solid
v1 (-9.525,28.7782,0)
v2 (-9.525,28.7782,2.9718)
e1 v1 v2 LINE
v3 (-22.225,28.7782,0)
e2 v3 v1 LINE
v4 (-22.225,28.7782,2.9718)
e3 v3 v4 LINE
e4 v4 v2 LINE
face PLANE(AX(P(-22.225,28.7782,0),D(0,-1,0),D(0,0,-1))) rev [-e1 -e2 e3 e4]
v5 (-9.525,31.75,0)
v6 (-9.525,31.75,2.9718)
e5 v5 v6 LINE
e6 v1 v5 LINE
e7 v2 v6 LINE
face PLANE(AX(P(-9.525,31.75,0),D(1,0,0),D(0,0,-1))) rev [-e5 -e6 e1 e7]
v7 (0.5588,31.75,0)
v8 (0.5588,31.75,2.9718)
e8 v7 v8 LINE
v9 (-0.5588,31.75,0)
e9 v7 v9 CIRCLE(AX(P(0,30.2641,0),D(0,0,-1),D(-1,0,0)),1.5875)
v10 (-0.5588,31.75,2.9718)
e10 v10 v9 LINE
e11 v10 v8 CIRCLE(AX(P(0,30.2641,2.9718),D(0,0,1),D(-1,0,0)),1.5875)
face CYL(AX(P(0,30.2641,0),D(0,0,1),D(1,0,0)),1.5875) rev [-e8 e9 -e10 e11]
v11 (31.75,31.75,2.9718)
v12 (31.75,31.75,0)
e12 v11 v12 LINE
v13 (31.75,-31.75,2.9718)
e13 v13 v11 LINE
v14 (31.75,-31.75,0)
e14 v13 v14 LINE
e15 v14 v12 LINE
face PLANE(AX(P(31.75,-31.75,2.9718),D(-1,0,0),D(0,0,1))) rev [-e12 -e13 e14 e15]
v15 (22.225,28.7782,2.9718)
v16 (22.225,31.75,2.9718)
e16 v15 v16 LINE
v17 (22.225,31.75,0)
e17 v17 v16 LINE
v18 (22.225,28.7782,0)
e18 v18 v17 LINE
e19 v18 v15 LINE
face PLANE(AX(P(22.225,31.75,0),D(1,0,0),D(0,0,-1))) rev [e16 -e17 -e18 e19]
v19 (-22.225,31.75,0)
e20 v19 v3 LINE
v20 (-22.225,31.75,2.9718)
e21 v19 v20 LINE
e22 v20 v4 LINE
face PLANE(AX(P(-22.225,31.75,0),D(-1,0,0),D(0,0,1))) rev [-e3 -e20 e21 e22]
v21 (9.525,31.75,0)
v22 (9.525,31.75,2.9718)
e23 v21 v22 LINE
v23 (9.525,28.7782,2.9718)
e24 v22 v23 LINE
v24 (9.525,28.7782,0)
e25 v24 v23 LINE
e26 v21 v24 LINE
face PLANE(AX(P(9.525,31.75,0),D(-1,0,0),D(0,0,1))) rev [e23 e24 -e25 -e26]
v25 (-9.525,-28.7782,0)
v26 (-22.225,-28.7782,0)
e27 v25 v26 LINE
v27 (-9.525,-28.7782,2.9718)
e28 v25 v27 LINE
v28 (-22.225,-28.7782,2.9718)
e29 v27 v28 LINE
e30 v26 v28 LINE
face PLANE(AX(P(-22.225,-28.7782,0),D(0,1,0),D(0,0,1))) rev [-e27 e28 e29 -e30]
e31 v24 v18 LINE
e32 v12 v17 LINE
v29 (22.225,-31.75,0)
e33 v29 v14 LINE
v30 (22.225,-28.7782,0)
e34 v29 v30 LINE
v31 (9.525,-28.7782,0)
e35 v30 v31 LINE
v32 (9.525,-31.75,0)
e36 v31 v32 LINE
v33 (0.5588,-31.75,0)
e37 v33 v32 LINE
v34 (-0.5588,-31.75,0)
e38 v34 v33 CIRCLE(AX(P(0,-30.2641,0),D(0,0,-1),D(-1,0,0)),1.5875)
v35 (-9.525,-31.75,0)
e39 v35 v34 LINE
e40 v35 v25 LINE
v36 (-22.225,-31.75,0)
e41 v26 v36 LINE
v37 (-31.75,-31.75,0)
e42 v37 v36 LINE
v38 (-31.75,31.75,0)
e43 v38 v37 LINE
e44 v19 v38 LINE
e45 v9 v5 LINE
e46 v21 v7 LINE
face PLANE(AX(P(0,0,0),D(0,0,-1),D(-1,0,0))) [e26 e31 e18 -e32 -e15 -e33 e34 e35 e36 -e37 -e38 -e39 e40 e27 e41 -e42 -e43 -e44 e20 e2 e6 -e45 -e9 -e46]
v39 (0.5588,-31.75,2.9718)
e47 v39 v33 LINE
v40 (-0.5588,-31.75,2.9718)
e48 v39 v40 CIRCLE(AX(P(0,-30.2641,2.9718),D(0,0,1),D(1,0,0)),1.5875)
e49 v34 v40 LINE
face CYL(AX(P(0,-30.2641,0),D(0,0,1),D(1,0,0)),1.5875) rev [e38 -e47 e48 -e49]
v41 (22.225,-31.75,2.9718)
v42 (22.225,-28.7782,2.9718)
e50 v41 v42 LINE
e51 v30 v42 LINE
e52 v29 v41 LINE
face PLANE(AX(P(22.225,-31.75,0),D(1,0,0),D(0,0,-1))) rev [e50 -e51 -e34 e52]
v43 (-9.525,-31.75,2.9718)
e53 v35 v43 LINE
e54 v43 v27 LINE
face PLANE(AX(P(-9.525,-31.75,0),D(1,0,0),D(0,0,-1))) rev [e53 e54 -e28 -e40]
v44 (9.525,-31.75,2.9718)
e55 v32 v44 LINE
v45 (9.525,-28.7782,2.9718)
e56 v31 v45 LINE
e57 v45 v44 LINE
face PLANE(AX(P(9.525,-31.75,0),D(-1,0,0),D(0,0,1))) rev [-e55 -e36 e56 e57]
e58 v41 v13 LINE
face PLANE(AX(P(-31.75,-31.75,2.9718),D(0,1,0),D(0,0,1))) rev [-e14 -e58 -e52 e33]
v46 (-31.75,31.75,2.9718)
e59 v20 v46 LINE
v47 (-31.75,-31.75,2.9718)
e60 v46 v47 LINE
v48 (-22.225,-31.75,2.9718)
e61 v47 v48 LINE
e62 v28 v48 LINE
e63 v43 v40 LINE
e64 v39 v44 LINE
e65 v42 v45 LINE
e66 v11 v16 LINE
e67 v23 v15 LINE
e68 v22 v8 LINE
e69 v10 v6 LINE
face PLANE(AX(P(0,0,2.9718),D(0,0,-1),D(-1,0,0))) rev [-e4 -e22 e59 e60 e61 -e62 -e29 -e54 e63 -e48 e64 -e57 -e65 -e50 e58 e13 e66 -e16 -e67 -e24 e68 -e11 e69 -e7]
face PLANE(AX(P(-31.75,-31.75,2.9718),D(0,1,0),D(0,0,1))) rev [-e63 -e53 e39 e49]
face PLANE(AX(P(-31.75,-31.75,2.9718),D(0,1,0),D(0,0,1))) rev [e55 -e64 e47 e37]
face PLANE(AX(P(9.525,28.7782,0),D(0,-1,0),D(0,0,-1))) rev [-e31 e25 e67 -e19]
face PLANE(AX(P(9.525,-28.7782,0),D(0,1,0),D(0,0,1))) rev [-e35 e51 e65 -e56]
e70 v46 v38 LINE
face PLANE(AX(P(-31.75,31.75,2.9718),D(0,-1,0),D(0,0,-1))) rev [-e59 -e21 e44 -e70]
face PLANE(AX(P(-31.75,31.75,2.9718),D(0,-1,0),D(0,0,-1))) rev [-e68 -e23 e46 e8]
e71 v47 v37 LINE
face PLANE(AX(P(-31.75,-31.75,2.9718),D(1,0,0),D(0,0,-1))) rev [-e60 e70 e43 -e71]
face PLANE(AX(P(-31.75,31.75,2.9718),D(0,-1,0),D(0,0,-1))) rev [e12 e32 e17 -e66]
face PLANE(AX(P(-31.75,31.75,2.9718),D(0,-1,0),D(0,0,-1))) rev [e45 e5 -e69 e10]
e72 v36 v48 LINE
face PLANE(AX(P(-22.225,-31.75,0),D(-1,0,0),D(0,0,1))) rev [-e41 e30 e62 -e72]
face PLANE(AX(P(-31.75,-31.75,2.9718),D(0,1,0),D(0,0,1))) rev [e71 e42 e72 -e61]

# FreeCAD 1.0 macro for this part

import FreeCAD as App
import Part
import Sketcher

V = App.Vector
Q = App.Units.Quantity


def add_polygon(sketch, points):
    """Adds a closed chain of lines whose ends are joined by coincident constraints."""
    first, n = sketch.GeometryCount, len(points)
    for a, b in zip(points, points[1:] + points[:1]):
        sketch.addGeometry(Part.LineSegment(App.Vector(*a, 0), App.Vector(*b, 0)), False)
    for i in range(n):
        sketch.addConstraint(Sketcher.Constraint("Coincident", first + i, 2, first + (i + 1) % n, 1))

doc = App.newDocument("Part")
body = doc.addObject("PartDesign::Body", "Body")

sketch1 = body.newObject("Sketcher::SketchObject", "Sketch")
sketch1.AttachmentSupport = (doc.getObject("XY_Plane"), [""])
sketch1.MapMode = "FlatFace"
add_polygon(sketch1, [(-32, 32), (-32, -32), (32, -32), (32, 32)])
sketch1.addConstraint(Sketcher.Constraint("Vertical", 0))
sketch1.addConstraint(Sketcher.Constraint("Horizontal", 1))
sketch1.addConstraint(Sketcher.Constraint("Vertical", 2))
sketch1.addConstraint(Sketcher.Constraint("Horizontal", 3))
sketch1.addConstraint(Sketcher.Constraint("Symmetric", 0, 2, 2, 2, -1, 1))
sketch1.addConstraint(Sketcher.Constraint("Equal", 3, 0))
sketch1.addConstraint(Sketcher.Constraint("DistanceX", 1, 1, 1, 2, Q("2.5 in")))
pad1 = body.newObject("PartDesign::Pad", "Pad")
pad1.Profile = sketch1
pad1.Length = Q("0.117 in")

sketch2 = body.newObject("Sketcher::SketchObject", "Sketch001")
sketch2.AttachmentSupport = (doc.getObject("XY_Plane"), [""])
sketch2.MapMode = "FlatFace"
sketch2.AttachmentOffset = App.Placement(V(0, 0, 0.117 * 25.4), App.Rotation())
sketch2.addGeometry(Part.Circle(V(0, -30.3, 0), V(0, 0, 1), 1.6), False)
sketch2.addGeometry(Part.Circle(V(0, 30.3, 0), V(0, 0, 1), 1.6), False)
add_polygon(sketch2, [(9.5, -28.8), (9.5, -31.8), (22.2, -31.8), (22.2, -28.8)])
add_polygon(sketch2, [(-22.2, -28.8), (-22.2, -31.8), (-9.5, -31.8), (-9.5, -28.8)])
add_polygon(sketch2, [(9.5, 31.8), (9.5, 28.8), (22.2, 28.8), (22.2, 31.8)])
add_polygon(sketch2, [(-22.2, 31.8), (-22.2, 28.8), (-9.5, 28.8), (-9.5, 31.8)])
sketch2.addConstraint(Sketcher.Constraint("Vertical", 2))
sketch2.addConstraint(Sketcher.Constraint("Horizontal", 3))
sketch2.addConstraint(Sketcher.Constraint("Vertical", 4))
sketch2.addConstraint(Sketcher.Constraint("Horizontal", 5))
sketch2.addConstraint(Sketcher.Constraint("Vertical", 6))
sketch2.addConstraint(Sketcher.Constraint("Horizontal", 7))
sketch2.addConstraint(Sketcher.Constraint("Vertical", 8))
sketch2.addConstraint(Sketcher.Constraint("Horizontal", 9))
sketch2.addConstraint(Sketcher.Constraint("Vertical", 10))
sketch2.addConstraint(Sketcher.Constraint("Horizontal", 11))
sketch2.addConstraint(Sketcher.Constraint("Vertical", 12))
sketch2.addConstraint(Sketcher.Constraint("Horizontal", 13))
sketch2.addConstraint(Sketcher.Constraint("Vertical", 14))
sketch2.addConstraint(Sketcher.Constraint("Horizontal", 15))
sketch2.addConstraint(Sketcher.Constraint("Vertical", 16))
sketch2.addConstraint(Sketcher.Constraint("Horizontal", 17))
sketch2.addConstraint(Sketcher.Constraint("Equal", 0, 1))
sketch2.addConstraint(Sketcher.Constraint("Symmetric", 0, 3, 1, 3, -1, 1))
sketch2.addConstraint(Sketcher.Constraint("Symmetric", 8, 2, 10, 2, -1, 1))
sketch2.addConstraint(Sketcher.Constraint("Symmetric", 6, 2, 12, 2, -1, 1))
sketch2.addConstraint(Sketcher.Constraint("Symmetric", 4, 2, 14, 2, -1, 1))
sketch2.addConstraint(Sketcher.Constraint("Symmetric", 2, 2, 16, 2, -1, 1))
sketch2.addConstraint(Sketcher.Constraint("Symmetric", 3, 2, 6, 2, -2))
sketch2.addConstraint(Sketcher.Constraint("Symmetric", 5, 2, 8, 2, -2))
sketch2.addConstraint(Sketcher.Constraint("PointOnObject", 0, 3, -2))
sketch2.addConstraint(Sketcher.Constraint("Diameter", 0, Q("0.125 in")))
sketch2.addConstraint(Sketcher.Constraint("DistanceX", 3, 1, 3, 2, Q("0.5 in")))
sketch2.addConstraint(Sketcher.Constraint("DistanceY", 2, 2, 2, 1, Q("0.117 in")))
sketch2.addConstraint(Sketcher.Constraint("DistanceY", 2, 2, -1, 1, Q("1.25 in")))
sketch2.addConstraint(Sketcher.Constraint("DistanceX", 6, 2, 2, 2, Q("1.25 in")))
sketch2.addConstraint(Sketcher.Constraint("DistanceY", 0, 3, 1, 3, Q("2.383 in")))
pocket1 = body.newObject("PartDesign::Pocket", "Pocket")
pocket1.Profile = sketch2
pocket1.Type = "ThroughAll"

doc.recompute()
